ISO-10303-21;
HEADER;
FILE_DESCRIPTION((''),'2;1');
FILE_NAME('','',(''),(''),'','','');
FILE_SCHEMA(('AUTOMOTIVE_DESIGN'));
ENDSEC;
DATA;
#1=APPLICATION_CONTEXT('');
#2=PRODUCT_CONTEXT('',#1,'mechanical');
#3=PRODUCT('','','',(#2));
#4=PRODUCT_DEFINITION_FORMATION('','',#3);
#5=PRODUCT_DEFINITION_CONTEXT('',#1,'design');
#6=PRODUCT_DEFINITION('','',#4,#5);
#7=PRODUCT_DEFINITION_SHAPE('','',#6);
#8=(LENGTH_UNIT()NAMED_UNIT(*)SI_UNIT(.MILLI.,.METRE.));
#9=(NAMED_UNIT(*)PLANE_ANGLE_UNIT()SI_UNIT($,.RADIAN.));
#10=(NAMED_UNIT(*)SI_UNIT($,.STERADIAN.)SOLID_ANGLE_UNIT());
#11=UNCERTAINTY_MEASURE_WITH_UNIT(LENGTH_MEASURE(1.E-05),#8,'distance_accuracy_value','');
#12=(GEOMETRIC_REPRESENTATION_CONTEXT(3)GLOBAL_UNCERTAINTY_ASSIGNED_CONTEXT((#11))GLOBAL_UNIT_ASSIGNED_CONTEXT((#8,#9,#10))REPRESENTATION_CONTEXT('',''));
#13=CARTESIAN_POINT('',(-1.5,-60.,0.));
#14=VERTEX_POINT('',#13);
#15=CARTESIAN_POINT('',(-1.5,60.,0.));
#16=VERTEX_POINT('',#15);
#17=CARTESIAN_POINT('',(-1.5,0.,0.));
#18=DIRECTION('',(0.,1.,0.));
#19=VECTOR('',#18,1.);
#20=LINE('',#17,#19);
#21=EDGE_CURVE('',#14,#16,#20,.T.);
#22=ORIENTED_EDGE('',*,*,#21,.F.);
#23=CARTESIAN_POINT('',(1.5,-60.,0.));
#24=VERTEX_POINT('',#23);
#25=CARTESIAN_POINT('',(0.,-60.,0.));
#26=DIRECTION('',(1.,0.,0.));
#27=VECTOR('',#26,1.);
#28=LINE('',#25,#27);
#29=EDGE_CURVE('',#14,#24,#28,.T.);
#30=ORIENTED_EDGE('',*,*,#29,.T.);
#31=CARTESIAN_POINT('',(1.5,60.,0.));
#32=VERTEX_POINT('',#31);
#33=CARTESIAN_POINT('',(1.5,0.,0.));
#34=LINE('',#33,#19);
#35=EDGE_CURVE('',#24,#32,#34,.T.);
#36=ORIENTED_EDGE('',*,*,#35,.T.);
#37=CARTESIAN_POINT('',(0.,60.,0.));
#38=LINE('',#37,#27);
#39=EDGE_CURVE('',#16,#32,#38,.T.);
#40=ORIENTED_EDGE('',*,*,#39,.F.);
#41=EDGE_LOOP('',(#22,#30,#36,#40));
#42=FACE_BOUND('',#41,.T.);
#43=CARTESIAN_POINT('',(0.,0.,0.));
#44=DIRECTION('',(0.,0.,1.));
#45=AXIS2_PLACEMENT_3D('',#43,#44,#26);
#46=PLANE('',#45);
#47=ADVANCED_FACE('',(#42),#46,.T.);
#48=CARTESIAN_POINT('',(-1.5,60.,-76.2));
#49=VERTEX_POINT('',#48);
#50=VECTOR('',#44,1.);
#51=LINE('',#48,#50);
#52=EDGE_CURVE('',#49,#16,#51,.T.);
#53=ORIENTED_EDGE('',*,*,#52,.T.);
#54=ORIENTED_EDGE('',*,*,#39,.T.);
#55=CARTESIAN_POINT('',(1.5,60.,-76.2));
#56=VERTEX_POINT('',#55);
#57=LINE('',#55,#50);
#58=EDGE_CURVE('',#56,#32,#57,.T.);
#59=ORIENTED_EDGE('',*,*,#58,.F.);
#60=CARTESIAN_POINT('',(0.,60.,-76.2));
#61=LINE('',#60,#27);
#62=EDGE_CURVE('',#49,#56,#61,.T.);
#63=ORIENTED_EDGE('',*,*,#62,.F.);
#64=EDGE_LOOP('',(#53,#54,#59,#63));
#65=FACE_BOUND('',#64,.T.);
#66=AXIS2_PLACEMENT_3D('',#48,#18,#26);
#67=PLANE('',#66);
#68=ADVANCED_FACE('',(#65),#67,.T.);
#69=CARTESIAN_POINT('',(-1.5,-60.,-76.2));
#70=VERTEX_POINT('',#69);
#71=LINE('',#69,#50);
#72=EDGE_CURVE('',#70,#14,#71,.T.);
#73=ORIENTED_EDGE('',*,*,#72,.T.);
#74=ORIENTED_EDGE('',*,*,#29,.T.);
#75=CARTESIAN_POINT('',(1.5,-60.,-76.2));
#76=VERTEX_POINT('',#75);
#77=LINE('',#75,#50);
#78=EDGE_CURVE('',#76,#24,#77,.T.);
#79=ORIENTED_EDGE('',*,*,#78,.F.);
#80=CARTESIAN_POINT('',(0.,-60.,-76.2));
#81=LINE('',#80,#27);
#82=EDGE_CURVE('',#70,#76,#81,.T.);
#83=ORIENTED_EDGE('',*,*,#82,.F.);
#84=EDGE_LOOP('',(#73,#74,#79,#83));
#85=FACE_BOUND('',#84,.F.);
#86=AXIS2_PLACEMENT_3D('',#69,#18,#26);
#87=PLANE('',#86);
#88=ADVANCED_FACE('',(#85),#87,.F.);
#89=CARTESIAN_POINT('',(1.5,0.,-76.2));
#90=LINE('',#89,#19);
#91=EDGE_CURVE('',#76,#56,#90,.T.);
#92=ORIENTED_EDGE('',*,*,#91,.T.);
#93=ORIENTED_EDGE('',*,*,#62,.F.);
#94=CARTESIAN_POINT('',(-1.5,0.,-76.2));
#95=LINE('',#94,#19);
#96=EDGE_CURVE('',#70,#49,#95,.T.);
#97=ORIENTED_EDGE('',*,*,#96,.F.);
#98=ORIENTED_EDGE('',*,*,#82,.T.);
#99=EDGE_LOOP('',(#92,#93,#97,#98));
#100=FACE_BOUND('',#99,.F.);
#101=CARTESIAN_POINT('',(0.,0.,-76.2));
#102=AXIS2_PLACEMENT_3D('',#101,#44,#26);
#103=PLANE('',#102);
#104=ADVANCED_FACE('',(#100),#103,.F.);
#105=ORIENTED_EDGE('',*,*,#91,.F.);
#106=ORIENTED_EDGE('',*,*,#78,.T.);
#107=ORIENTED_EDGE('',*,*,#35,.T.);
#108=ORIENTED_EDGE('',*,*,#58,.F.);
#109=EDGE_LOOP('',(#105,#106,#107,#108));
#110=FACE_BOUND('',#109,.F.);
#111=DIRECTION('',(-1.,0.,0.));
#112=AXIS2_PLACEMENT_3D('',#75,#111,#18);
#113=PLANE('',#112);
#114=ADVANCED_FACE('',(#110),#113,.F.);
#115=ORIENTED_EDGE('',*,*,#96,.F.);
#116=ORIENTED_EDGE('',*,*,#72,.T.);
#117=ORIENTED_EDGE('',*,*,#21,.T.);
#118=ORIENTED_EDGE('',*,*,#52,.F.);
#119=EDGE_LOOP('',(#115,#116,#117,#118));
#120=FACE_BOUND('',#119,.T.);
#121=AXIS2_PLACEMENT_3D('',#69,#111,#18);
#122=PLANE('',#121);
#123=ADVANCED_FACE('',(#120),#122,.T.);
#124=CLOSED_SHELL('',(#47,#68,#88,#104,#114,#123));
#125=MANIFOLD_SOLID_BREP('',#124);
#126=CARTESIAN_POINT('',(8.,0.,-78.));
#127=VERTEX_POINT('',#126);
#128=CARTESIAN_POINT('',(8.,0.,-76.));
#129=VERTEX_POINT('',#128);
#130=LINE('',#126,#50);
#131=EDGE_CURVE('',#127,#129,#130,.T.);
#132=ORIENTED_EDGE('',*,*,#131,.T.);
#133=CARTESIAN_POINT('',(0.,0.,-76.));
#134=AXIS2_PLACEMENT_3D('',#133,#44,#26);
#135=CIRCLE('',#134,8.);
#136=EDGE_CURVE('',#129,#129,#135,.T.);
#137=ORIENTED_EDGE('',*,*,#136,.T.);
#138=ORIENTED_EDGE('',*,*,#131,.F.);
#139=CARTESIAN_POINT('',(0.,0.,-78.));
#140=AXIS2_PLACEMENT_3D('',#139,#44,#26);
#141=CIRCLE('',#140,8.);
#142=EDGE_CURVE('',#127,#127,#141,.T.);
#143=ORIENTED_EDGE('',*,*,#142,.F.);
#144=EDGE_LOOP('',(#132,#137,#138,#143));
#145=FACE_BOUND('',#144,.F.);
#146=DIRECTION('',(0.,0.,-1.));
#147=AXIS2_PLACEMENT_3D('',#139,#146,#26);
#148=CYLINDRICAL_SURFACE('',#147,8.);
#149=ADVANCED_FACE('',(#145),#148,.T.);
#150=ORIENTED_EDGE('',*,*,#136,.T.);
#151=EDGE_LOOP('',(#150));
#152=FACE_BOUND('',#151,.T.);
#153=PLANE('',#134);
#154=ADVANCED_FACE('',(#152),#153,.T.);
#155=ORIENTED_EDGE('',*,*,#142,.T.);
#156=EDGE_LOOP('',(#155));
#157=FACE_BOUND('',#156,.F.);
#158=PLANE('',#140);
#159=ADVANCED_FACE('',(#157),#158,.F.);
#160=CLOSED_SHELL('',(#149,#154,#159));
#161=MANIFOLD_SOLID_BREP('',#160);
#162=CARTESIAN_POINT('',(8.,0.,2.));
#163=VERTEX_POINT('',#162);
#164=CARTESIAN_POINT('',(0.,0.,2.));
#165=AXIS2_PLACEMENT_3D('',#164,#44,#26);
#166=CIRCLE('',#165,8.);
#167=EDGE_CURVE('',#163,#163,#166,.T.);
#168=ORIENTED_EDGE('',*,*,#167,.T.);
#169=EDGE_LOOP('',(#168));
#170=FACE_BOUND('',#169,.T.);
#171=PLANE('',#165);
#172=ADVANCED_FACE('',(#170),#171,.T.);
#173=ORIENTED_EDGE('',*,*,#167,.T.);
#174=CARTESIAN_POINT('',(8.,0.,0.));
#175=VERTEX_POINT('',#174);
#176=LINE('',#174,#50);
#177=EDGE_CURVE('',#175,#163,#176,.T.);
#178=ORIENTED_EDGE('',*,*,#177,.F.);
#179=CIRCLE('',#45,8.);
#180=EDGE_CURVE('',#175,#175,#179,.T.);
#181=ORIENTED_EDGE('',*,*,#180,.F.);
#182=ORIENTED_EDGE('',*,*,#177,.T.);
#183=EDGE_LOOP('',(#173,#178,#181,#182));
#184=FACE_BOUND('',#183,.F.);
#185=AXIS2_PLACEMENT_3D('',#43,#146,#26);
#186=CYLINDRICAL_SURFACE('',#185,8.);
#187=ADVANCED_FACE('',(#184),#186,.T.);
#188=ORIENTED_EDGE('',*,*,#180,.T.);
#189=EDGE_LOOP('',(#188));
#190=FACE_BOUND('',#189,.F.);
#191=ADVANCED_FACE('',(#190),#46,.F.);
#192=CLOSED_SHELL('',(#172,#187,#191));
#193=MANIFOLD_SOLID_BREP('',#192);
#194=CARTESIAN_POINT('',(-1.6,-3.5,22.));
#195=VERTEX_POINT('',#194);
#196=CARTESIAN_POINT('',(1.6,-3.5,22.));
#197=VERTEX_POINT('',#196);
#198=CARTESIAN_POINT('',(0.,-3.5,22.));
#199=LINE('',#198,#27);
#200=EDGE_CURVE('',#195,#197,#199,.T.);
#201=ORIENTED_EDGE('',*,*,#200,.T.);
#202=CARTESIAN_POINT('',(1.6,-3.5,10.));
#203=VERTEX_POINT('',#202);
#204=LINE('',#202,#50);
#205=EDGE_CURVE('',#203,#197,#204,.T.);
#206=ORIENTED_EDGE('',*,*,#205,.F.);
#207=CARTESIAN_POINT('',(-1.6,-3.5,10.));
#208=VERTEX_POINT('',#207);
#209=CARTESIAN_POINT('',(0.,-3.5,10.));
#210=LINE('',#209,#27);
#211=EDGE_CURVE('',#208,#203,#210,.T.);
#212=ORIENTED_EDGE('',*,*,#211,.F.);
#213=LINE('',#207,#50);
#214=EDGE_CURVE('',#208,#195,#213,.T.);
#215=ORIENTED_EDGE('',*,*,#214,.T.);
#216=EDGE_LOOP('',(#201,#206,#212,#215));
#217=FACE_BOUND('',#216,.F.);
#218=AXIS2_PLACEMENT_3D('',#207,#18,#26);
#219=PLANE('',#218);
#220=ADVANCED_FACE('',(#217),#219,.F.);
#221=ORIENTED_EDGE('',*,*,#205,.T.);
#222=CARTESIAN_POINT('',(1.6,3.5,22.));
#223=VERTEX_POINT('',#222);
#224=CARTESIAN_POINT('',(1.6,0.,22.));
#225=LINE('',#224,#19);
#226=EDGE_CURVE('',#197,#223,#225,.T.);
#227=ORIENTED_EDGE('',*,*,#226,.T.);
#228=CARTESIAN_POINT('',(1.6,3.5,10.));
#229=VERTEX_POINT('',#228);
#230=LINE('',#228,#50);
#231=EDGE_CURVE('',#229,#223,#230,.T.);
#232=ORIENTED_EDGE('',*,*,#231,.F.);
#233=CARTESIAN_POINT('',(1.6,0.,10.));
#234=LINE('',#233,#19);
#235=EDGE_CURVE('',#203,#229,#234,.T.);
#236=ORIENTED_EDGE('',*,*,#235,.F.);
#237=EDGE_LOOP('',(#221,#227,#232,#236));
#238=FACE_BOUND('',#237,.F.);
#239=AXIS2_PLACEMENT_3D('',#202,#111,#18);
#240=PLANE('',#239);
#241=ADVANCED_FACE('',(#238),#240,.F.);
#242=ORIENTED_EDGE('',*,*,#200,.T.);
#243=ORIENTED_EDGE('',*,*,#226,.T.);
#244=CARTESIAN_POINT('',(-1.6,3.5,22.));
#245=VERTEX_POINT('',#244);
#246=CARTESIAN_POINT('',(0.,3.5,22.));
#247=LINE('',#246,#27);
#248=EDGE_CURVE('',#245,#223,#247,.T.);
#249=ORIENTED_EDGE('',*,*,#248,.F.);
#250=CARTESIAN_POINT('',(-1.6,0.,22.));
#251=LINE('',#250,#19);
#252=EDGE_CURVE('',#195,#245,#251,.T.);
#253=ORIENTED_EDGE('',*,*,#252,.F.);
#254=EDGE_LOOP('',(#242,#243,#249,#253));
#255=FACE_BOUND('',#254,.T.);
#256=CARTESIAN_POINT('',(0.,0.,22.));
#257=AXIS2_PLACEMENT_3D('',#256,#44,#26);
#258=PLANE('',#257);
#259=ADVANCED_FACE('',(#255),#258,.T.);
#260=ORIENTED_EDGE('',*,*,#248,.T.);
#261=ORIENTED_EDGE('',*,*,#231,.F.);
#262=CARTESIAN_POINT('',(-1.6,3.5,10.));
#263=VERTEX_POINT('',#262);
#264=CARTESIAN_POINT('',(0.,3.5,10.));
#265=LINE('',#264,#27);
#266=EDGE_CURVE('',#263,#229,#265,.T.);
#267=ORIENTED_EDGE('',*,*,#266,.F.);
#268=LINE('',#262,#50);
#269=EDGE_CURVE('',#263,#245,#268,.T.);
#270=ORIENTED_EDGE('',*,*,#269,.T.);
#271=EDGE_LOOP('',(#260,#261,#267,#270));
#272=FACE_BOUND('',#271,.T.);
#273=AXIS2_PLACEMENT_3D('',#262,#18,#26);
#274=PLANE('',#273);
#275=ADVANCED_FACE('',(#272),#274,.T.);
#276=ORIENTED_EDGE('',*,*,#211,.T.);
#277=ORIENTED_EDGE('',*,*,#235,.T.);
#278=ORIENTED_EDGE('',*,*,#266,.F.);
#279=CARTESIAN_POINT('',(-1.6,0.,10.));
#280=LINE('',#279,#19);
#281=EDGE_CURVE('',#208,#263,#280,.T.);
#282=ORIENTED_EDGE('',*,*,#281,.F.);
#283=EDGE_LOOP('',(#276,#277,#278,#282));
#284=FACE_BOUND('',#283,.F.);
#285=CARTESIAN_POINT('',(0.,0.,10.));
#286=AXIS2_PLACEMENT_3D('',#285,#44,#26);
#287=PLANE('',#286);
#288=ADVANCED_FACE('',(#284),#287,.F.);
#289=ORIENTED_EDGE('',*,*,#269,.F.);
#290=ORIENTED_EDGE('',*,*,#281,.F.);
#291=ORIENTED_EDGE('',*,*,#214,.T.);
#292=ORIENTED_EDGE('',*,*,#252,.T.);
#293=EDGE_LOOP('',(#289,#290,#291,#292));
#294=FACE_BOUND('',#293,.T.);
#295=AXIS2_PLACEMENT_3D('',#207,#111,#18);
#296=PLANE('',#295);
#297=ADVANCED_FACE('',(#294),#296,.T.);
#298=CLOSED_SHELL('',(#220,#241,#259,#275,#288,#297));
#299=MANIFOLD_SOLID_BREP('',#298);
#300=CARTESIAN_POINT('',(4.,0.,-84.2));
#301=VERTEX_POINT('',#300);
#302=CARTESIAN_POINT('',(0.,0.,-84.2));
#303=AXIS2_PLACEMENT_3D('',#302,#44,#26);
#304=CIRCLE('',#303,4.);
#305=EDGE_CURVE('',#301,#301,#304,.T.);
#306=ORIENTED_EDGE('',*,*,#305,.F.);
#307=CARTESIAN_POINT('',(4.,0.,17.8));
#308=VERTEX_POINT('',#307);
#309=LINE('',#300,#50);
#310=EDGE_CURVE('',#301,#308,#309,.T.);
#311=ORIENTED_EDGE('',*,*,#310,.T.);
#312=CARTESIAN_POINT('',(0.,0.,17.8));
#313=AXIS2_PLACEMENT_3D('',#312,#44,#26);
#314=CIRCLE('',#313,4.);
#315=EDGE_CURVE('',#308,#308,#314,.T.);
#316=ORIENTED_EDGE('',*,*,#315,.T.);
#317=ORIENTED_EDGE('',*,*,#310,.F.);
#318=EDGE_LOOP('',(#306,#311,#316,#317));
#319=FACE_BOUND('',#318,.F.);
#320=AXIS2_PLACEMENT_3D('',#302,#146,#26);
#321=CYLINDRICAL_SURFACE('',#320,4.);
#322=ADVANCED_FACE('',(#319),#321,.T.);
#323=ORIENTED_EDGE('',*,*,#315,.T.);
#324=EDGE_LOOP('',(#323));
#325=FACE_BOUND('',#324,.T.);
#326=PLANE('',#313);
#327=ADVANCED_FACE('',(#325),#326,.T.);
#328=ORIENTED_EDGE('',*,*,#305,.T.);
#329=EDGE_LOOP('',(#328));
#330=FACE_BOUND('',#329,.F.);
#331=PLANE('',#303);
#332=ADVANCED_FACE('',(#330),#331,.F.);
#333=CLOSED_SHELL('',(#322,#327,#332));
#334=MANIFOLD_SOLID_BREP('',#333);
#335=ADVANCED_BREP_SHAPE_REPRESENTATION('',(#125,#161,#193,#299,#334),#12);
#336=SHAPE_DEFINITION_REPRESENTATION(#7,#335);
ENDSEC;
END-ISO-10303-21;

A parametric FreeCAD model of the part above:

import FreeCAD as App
import Part
import Sketcher


def add_polygon(sketch, points):
    """Adds a closed chain of lines whose ends are joined by coincident constraints."""
    first, n = sketch.GeometryCount, len(points)
    for a, b in zip(points, points[1:] + points[:1]):
        sketch.addGeometry(Part.LineSegment(App.Vector(*a, 0), App.Vector(*b, 0)), False)
    for i in range(n):
        sketch.addConstraint(Sketcher.Constraint("Coincident", first + i, 2, first + (i + 1) % n, 1))

doc = App.newDocument("Part")
body = doc.addObject("PartDesign::Body", "Body")

# Sketch on XY plane
sketch1 = body.newObject("Sketcher::SketchObject", "Sketch")
sketch1.AttachmentSupport = (doc.getObject("XY_Plane"), [""])
sketch1.MapMode = "FlatFace"
sketch1.AttachmentOffset = App.Placement(App.Vector(0, 0, -84.2), App.Rotation())
sketch1.addGeometry(Part.Circle(App.Vector(0, 0, 0), App.Vector(0, 0, 1), 4), False)
sketch1.addConstraint([
    Sketcher.Constraint("Coincident", 0, 3, -1, 1),
    Sketcher.Constraint("Diameter", 0, 8.0),
])
pad1 = body.newObject("PartDesign::Pad", "Pad")
pad1.Profile = sketch1
pad1.Length = 102
body2 = doc.addObject("PartDesign::Body", "Body001")

# Sketch on XY plane
sketch2 = body2.newObject("Sketcher::SketchObject", "Sketch001")
sketch2.AttachmentSupport = (doc.getObject("XY_Plane001"), [""])
sketch2.MapMode = "FlatFace"
sketch2.AttachmentOffset = App.Placement(App.Vector(0, 0, 10), App.Rotation())
add_polygon(sketch2, [(-1.6, 3.5), (-1.6, -3.5), (1.6, -3.5), (1.6, 3.5)])  # lines 0-3
sketch2.addConstraint([
    Sketcher.Constraint("Vertical", 0),
    Sketcher.Constraint("Horizontal", 1),
    Sketcher.Constraint("Vertical", 2),
    Sketcher.Constraint("Horizontal", 3),
    Sketcher.Constraint("Symmetric", 0, 2, 2, 2, -1, 1),
    Sketcher.Constraint("DistanceY", 0, 2, 0, 1, 7.0),
    Sketcher.Constraint("DistanceX", 1, 1, 1, 2, 3.2),
])
pad2 = body2.newObject("PartDesign::Pad", "Pad001")
pad2.Profile = sketch2
pad2.Length = 12
body3 = doc.addObject("PartDesign::Body", "Body002")

# Sketch on XY plane
sketch3 = body3.newObject("Sketcher::SketchObject", "Sketch002")
sketch3.AttachmentSupport = (doc.getObject("XY_Plane002"), [""])
sketch3.MapMode = "FlatFace"
sketch3.AttachmentOffset = App.Placement(App.Vector(0, 0, -76.2), App.Rotation())
add_polygon(sketch3, [(-1.5, 60), (-1.5, -60), (1.5, -60), (1.5, 60)])  # lines 0-3
sketch3.addConstraint([
    Sketcher.Constraint("Vertical", 0),
    Sketcher.Constraint("Horizontal", 1),
    Sketcher.Constraint("Vertical", 2),
    Sketcher.Constraint("Horizontal", 3),
    Sketcher.Constraint("Symmetric", 0, 2, 2, 2, -1, 1),
    Sketcher.Constraint("DistanceX", 1, 1, 1, 2, 3.0),
    Sketcher.Constraint("DistanceY", 0, 2, 0, 1, 120.0),
])
pad3 = body3.newObject("PartDesign::Pad", "Pad002")
pad3.Profile = sketch3
pad3.Length = 76.2
body4 = doc.addObject("PartDesign::Body", "Body003")

# Sketch on XY plane
sketch4 = body4.newObject("Sketcher::SketchObject", "Sketch003")
sketch4.AttachmentSupport = (doc.getObject("XY_Plane003"), [""])
sketch4.MapMode = "FlatFace"
sketch4.addGeometry(Part.Circle(App.Vector(0, 0, 0), App.Vector(0, 0, 1), 8), False)
sketch4.addConstraint([
    Sketcher.Constraint("Coincident", 0, 3, -1, 1),
    Sketcher.Constraint("Diameter", 0, 16.0),
])
pad4 = body4.newObject("PartDesign::Pad", "Pad003")
pad4.Profile = sketch4
pad4.Length = 2
body5 = doc.addObject("PartDesign::Body", "Body004")

# Sketch on XY plane
sketch5 = body5.newObject("Sketcher::SketchObject", "Sketch004")
sketch5.AttachmentSupport = (doc.getObject("XY_Plane004"), [""])
sketch5.MapMode = "FlatFace"
sketch5.AttachmentOffset = App.Placement(App.Vector(0, 0, -78), App.Rotation())
sketch5.addGeometry(Part.Circle(App.Vector(0, 0, 0), App.Vector(0, 0, 1), 8), False)
sketch5.addConstraint([
    Sketcher.Constraint("Coincident", 0, 3, -1, 1),
    Sketcher.Constraint("Diameter", 0, 16.0),
])
pad5 = body5.newObject("PartDesign::Pad", "Pad004")
pad5.Profile = sketch5
pad5.Length = 2

doc.recompute()
